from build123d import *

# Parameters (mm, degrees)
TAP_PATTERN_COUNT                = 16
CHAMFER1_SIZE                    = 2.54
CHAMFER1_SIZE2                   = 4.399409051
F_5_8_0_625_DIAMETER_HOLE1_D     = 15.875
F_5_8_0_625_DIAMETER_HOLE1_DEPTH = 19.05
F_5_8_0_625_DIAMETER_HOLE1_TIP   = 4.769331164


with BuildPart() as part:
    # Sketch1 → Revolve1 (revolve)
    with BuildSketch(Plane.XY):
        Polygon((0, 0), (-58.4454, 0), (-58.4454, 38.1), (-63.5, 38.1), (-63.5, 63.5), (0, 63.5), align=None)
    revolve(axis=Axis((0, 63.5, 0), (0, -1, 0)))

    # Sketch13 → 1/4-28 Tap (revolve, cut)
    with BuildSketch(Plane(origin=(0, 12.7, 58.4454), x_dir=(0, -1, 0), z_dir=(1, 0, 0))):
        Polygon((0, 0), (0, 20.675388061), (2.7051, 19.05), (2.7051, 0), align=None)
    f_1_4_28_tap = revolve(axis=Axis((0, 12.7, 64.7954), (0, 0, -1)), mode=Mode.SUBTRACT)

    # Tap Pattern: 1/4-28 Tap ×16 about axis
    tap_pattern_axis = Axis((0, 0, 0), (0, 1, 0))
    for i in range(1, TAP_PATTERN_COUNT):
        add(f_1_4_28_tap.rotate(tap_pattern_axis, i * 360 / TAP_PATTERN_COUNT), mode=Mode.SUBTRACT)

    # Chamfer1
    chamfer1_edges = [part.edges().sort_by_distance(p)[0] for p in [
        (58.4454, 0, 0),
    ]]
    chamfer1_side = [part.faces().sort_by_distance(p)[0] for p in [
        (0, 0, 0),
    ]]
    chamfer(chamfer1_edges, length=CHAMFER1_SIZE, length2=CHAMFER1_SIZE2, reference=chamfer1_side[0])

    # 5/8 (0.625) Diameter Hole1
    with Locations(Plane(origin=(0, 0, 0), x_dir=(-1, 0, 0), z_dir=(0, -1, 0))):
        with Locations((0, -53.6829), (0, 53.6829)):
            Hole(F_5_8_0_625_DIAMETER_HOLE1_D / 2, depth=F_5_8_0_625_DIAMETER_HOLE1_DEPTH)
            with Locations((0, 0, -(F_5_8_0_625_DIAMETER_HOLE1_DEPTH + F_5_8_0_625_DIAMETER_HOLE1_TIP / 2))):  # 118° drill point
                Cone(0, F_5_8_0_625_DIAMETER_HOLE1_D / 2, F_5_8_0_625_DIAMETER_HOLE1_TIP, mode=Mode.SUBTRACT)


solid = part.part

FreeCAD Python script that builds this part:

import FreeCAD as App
import Part
import Sketcher
Q = App.Units.Quantity


def edges_at(feature, points):
    """Names of the edges that pass closest to the given points."""
    edges = feature.Shape.Edges
    near = lambda p: min(range(len(edges)), key=lambda i: edges[i].distToShape(Part.Vertex(*p))[0])
    return sorted({f"Edge{near(p) + 1}" for p in points})

doc = App.newDocument("Part")
body = doc.addObject("PartDesign::Body", "Body")

sketch1 = doc.addObject("Sketcher::SketchObject", "Sketch")
body.addObject(sketch1)
sketch1.AttachmentSupport = (doc.XY_Plane, [""])
sketch1.MapMode = "FlatFace"
sketch1.addGeometry(Part.LineSegment(App.Vector(-58.4454, 0, 0), App.Vector(0, 0, 0)), False)
sketch1.addGeometry(Part.LineSegment(App.Vector(0, 0, 0), App.Vector(0, 63.5, 0)), False)
sketch1.addGeometry(Part.LineSegment(App.Vector(0, 63.5, 0), App.Vector(-63.5, 63.5, 0)), False)
sketch1.addGeometry(Part.LineSegment(App.Vector(-63.5, 63.5, 0), App.Vector(-63.5, 38.1, 0)), False)
sketch1.addGeometry(Part.LineSegment(App.Vector(-63.5, 38.1, 0), App.Vector(-58.4454, 38.1, 0)), False)
sketch1.addGeometry(Part.LineSegment(App.Vector(-58.4454, 38.1, 0), App.Vector(-58.4454, 0, 0)), False)
sketch1.addConstraint(Sketcher.Constraint("Coincident", 0, 2, 1, 1))
sketch1.addConstraint(Sketcher.Constraint("Coincident", 1, 2, 2, 1))
sketch1.addConstraint(Sketcher.Constraint("Coincident", 2, 2, 3, 1))
sketch1.addConstraint(Sketcher.Constraint("Coincident", 3, 2, 4, 1))
sketch1.addConstraint(Sketcher.Constraint("Coincident", 4, 2, 5, 1))
sketch1.addConstraint(Sketcher.Constraint("Coincident", 5, 2, 0, 1))
sketch1.addConstraint(Sketcher.Constraint("Horizontal", 0))
sketch1.addConstraint(Sketcher.Constraint("Vertical", 1))
sketch1.addConstraint(Sketcher.Constraint("Horizontal", 2))
sketch1.addConstraint(Sketcher.Constraint("Vertical", 3))
sketch1.addConstraint(Sketcher.Constraint("Horizontal", 4))
sketch1.addConstraint(Sketcher.Constraint("Vertical", 5))
sketch1.addConstraint(Sketcher.Constraint("Coincident", 0, 2, -1, 1))
sketch1.addConstraint(Sketcher.Constraint("Equal", 2, 1))
sketch1.addConstraint(Sketcher.Constraint("DistanceY", 3, 2, 3, 1, Q("1 in")))
sketch1.addConstraint(Sketcher.Constraint("DistanceX", 2, 2, 2, 1, Q("2.5 in")))
sketch1.addConstraint(Sketcher.Constraint("DistanceX", 0, 1, 0, 2, Q("2.301 in")))
revolution = doc.addObject("PartDesign::Revolution", "Revolution")
body.addObject(revolution)
revolution.Profile = sketch1
revolution.ReferenceAxis = (sketch1, ["V_Axis"])
revolution.Angle = 360

sketch2 = doc.addObject("Sketcher::SketchObject", "Sketch001")
body.addObject(sketch2)
sketch2.AttachmentSupport = (doc.YZ_Plane, [""])
sketch2.MapMode = "FlatFace"
sketch2.addGeometry(Part.LineSegment(App.Vector(12.7, 37.770012, 0), App.Vector(12.7, 58.4454, 0)), False)
sketch2.addGeometry(Part.LineSegment(App.Vector(12.7, 58.4454, 0), App.Vector(9.9949, 58.4454, 0)), False)
sketch2.addGeometry(Part.LineSegment(App.Vector(9.9949, 58.4454, 0), App.Vector(9.9949, 39.3954, 0)), False)
sketch2.addGeometry(Part.LineSegment(App.Vector(9.9949, 39.3954, 0), App.Vector(12.7, 37.770012, 0)), False)
sketch2.addGeometry(Part.LineSegment(App.Vector(12.7, 58.4454, 0), App.Vector(12.7, 37.770012, 0)), True)
sketch2.addConstraint(Sketcher.Constraint("Coincident", 0, 2, 1, 1))
sketch2.addConstraint(Sketcher.Constraint("Coincident", 1, 2, 2, 1))
sketch2.addConstraint(Sketcher.Constraint("Coincident", 2, 2, 3, 1))
sketch2.addConstraint(Sketcher.Constraint("Coincident", 3, 2, 0, 1))
sketch2.addConstraint(Sketcher.Constraint("Vertical", 0))
sketch2.addConstraint(Sketcher.Constraint("Horizontal", 1))
sketch2.addConstraint(Sketcher.Constraint("Vertical", 2))
sketch2.addConstraint(Sketcher.Constraint("Vertical", 4))
sketch2.addConstraint(Sketcher.Constraint("Coincident", 4, 1, 0, 2))
sketch2.addConstraint(Sketcher.Constraint("Equal", 0, 4))
sketch2.addConstraint(Sketcher.Constraint("Angle", 3, Q("-31 deg")))
sketch2.addConstraint(Sketcher.Constraint("DistanceY", 2, 2, 2, 1, Q("0.75 in")))
sketch2.addConstraint(Sketcher.Constraint("DistanceX", -1, 1, 0, 2, Q("0.5 in")))
sketch2.addConstraint(Sketcher.Constraint("DistanceX", 1, 2, 1, 1, Q("0.1065 in")))
sketch2.addConstraint(Sketcher.Constraint("DistanceY", -1, 1, 0, 2, Q("2.301 in")))
groove = doc.addObject("PartDesign::Groove", "Groove")
body.addObject(groove)
groove.Profile = sketch2
groove.ReferenceAxis = (sketch2, ["Axis0"])
groove.Angle = 360
doc.recompute()

polarpattern = doc.addObject("PartDesign::PolarPattern", "PolarPattern")
body.addObject(polarpattern)
polarpattern.Originals = [groove]
polarpattern.Axis = (doc.Y_Axis, [""])
polarpattern.Angle = 360
polarpattern.Occurrences = 16
body.Tip = polarpattern
doc.recompute()

chamfer = doc.addObject("PartDesign::Chamfer", "Chamfer")
body.addObject(chamfer)
chamfer.Base = (polarpattern, edges_at(polarpattern, [(58.445, 0, 0)]))
chamfer.ChamferType = "Two distances"
chamfer.Size = Q("0.1 in")
chamfer.Size2 = 4.399409

sketch3 = doc.addObject("Sketcher::SketchObject", "Sketch002")
body.addObject(sketch3)
sketch3.AttachmentSupport = (doc.XZ_Plane, [""])
sketch3.MapMode = "FlatFace"
sketch3.addGeometry(Part.Circle(App.Vector(0, 53.6829, 0), App.Vector(0, 0, 1), 7.9375), False)
sketch3.addGeometry(Part.Circle(App.Vector(0, -53.6829, 0), App.Vector(0, 0, 1), 7.9375), False)
sketch3.addConstraint(Sketcher.Constraint("Equal", 0, 1))
sketch3.addConstraint(Sketcher.Constraint("Symmetric", 0, 3, 1, 3, -1, 1))
sketch3.addConstraint(Sketcher.Constraint("PointOnObject", 0, 3, -2))
sketch3.addConstraint(Sketcher.Constraint("Diameter", 0, Q("0.625 in")))
sketch3.addConstraint(Sketcher.Constraint("DistanceY", 1, 3, 0, 3, Q("4.227 in")))
doc.recompute()
hole = doc.addObject("PartDesign::Hole", "Hole")
body.addObject(hole)
hole.Profile = sketch3
hole.ThreadType = "None"
hole.Diameter = Q("0.625 in")
hole.DepthType = "Dimension"
hole.Depth = Q("0.75 in")
hole.DrillPoint = "Angled"
hole.DrillPointAngle = 118

doc.recompute()
